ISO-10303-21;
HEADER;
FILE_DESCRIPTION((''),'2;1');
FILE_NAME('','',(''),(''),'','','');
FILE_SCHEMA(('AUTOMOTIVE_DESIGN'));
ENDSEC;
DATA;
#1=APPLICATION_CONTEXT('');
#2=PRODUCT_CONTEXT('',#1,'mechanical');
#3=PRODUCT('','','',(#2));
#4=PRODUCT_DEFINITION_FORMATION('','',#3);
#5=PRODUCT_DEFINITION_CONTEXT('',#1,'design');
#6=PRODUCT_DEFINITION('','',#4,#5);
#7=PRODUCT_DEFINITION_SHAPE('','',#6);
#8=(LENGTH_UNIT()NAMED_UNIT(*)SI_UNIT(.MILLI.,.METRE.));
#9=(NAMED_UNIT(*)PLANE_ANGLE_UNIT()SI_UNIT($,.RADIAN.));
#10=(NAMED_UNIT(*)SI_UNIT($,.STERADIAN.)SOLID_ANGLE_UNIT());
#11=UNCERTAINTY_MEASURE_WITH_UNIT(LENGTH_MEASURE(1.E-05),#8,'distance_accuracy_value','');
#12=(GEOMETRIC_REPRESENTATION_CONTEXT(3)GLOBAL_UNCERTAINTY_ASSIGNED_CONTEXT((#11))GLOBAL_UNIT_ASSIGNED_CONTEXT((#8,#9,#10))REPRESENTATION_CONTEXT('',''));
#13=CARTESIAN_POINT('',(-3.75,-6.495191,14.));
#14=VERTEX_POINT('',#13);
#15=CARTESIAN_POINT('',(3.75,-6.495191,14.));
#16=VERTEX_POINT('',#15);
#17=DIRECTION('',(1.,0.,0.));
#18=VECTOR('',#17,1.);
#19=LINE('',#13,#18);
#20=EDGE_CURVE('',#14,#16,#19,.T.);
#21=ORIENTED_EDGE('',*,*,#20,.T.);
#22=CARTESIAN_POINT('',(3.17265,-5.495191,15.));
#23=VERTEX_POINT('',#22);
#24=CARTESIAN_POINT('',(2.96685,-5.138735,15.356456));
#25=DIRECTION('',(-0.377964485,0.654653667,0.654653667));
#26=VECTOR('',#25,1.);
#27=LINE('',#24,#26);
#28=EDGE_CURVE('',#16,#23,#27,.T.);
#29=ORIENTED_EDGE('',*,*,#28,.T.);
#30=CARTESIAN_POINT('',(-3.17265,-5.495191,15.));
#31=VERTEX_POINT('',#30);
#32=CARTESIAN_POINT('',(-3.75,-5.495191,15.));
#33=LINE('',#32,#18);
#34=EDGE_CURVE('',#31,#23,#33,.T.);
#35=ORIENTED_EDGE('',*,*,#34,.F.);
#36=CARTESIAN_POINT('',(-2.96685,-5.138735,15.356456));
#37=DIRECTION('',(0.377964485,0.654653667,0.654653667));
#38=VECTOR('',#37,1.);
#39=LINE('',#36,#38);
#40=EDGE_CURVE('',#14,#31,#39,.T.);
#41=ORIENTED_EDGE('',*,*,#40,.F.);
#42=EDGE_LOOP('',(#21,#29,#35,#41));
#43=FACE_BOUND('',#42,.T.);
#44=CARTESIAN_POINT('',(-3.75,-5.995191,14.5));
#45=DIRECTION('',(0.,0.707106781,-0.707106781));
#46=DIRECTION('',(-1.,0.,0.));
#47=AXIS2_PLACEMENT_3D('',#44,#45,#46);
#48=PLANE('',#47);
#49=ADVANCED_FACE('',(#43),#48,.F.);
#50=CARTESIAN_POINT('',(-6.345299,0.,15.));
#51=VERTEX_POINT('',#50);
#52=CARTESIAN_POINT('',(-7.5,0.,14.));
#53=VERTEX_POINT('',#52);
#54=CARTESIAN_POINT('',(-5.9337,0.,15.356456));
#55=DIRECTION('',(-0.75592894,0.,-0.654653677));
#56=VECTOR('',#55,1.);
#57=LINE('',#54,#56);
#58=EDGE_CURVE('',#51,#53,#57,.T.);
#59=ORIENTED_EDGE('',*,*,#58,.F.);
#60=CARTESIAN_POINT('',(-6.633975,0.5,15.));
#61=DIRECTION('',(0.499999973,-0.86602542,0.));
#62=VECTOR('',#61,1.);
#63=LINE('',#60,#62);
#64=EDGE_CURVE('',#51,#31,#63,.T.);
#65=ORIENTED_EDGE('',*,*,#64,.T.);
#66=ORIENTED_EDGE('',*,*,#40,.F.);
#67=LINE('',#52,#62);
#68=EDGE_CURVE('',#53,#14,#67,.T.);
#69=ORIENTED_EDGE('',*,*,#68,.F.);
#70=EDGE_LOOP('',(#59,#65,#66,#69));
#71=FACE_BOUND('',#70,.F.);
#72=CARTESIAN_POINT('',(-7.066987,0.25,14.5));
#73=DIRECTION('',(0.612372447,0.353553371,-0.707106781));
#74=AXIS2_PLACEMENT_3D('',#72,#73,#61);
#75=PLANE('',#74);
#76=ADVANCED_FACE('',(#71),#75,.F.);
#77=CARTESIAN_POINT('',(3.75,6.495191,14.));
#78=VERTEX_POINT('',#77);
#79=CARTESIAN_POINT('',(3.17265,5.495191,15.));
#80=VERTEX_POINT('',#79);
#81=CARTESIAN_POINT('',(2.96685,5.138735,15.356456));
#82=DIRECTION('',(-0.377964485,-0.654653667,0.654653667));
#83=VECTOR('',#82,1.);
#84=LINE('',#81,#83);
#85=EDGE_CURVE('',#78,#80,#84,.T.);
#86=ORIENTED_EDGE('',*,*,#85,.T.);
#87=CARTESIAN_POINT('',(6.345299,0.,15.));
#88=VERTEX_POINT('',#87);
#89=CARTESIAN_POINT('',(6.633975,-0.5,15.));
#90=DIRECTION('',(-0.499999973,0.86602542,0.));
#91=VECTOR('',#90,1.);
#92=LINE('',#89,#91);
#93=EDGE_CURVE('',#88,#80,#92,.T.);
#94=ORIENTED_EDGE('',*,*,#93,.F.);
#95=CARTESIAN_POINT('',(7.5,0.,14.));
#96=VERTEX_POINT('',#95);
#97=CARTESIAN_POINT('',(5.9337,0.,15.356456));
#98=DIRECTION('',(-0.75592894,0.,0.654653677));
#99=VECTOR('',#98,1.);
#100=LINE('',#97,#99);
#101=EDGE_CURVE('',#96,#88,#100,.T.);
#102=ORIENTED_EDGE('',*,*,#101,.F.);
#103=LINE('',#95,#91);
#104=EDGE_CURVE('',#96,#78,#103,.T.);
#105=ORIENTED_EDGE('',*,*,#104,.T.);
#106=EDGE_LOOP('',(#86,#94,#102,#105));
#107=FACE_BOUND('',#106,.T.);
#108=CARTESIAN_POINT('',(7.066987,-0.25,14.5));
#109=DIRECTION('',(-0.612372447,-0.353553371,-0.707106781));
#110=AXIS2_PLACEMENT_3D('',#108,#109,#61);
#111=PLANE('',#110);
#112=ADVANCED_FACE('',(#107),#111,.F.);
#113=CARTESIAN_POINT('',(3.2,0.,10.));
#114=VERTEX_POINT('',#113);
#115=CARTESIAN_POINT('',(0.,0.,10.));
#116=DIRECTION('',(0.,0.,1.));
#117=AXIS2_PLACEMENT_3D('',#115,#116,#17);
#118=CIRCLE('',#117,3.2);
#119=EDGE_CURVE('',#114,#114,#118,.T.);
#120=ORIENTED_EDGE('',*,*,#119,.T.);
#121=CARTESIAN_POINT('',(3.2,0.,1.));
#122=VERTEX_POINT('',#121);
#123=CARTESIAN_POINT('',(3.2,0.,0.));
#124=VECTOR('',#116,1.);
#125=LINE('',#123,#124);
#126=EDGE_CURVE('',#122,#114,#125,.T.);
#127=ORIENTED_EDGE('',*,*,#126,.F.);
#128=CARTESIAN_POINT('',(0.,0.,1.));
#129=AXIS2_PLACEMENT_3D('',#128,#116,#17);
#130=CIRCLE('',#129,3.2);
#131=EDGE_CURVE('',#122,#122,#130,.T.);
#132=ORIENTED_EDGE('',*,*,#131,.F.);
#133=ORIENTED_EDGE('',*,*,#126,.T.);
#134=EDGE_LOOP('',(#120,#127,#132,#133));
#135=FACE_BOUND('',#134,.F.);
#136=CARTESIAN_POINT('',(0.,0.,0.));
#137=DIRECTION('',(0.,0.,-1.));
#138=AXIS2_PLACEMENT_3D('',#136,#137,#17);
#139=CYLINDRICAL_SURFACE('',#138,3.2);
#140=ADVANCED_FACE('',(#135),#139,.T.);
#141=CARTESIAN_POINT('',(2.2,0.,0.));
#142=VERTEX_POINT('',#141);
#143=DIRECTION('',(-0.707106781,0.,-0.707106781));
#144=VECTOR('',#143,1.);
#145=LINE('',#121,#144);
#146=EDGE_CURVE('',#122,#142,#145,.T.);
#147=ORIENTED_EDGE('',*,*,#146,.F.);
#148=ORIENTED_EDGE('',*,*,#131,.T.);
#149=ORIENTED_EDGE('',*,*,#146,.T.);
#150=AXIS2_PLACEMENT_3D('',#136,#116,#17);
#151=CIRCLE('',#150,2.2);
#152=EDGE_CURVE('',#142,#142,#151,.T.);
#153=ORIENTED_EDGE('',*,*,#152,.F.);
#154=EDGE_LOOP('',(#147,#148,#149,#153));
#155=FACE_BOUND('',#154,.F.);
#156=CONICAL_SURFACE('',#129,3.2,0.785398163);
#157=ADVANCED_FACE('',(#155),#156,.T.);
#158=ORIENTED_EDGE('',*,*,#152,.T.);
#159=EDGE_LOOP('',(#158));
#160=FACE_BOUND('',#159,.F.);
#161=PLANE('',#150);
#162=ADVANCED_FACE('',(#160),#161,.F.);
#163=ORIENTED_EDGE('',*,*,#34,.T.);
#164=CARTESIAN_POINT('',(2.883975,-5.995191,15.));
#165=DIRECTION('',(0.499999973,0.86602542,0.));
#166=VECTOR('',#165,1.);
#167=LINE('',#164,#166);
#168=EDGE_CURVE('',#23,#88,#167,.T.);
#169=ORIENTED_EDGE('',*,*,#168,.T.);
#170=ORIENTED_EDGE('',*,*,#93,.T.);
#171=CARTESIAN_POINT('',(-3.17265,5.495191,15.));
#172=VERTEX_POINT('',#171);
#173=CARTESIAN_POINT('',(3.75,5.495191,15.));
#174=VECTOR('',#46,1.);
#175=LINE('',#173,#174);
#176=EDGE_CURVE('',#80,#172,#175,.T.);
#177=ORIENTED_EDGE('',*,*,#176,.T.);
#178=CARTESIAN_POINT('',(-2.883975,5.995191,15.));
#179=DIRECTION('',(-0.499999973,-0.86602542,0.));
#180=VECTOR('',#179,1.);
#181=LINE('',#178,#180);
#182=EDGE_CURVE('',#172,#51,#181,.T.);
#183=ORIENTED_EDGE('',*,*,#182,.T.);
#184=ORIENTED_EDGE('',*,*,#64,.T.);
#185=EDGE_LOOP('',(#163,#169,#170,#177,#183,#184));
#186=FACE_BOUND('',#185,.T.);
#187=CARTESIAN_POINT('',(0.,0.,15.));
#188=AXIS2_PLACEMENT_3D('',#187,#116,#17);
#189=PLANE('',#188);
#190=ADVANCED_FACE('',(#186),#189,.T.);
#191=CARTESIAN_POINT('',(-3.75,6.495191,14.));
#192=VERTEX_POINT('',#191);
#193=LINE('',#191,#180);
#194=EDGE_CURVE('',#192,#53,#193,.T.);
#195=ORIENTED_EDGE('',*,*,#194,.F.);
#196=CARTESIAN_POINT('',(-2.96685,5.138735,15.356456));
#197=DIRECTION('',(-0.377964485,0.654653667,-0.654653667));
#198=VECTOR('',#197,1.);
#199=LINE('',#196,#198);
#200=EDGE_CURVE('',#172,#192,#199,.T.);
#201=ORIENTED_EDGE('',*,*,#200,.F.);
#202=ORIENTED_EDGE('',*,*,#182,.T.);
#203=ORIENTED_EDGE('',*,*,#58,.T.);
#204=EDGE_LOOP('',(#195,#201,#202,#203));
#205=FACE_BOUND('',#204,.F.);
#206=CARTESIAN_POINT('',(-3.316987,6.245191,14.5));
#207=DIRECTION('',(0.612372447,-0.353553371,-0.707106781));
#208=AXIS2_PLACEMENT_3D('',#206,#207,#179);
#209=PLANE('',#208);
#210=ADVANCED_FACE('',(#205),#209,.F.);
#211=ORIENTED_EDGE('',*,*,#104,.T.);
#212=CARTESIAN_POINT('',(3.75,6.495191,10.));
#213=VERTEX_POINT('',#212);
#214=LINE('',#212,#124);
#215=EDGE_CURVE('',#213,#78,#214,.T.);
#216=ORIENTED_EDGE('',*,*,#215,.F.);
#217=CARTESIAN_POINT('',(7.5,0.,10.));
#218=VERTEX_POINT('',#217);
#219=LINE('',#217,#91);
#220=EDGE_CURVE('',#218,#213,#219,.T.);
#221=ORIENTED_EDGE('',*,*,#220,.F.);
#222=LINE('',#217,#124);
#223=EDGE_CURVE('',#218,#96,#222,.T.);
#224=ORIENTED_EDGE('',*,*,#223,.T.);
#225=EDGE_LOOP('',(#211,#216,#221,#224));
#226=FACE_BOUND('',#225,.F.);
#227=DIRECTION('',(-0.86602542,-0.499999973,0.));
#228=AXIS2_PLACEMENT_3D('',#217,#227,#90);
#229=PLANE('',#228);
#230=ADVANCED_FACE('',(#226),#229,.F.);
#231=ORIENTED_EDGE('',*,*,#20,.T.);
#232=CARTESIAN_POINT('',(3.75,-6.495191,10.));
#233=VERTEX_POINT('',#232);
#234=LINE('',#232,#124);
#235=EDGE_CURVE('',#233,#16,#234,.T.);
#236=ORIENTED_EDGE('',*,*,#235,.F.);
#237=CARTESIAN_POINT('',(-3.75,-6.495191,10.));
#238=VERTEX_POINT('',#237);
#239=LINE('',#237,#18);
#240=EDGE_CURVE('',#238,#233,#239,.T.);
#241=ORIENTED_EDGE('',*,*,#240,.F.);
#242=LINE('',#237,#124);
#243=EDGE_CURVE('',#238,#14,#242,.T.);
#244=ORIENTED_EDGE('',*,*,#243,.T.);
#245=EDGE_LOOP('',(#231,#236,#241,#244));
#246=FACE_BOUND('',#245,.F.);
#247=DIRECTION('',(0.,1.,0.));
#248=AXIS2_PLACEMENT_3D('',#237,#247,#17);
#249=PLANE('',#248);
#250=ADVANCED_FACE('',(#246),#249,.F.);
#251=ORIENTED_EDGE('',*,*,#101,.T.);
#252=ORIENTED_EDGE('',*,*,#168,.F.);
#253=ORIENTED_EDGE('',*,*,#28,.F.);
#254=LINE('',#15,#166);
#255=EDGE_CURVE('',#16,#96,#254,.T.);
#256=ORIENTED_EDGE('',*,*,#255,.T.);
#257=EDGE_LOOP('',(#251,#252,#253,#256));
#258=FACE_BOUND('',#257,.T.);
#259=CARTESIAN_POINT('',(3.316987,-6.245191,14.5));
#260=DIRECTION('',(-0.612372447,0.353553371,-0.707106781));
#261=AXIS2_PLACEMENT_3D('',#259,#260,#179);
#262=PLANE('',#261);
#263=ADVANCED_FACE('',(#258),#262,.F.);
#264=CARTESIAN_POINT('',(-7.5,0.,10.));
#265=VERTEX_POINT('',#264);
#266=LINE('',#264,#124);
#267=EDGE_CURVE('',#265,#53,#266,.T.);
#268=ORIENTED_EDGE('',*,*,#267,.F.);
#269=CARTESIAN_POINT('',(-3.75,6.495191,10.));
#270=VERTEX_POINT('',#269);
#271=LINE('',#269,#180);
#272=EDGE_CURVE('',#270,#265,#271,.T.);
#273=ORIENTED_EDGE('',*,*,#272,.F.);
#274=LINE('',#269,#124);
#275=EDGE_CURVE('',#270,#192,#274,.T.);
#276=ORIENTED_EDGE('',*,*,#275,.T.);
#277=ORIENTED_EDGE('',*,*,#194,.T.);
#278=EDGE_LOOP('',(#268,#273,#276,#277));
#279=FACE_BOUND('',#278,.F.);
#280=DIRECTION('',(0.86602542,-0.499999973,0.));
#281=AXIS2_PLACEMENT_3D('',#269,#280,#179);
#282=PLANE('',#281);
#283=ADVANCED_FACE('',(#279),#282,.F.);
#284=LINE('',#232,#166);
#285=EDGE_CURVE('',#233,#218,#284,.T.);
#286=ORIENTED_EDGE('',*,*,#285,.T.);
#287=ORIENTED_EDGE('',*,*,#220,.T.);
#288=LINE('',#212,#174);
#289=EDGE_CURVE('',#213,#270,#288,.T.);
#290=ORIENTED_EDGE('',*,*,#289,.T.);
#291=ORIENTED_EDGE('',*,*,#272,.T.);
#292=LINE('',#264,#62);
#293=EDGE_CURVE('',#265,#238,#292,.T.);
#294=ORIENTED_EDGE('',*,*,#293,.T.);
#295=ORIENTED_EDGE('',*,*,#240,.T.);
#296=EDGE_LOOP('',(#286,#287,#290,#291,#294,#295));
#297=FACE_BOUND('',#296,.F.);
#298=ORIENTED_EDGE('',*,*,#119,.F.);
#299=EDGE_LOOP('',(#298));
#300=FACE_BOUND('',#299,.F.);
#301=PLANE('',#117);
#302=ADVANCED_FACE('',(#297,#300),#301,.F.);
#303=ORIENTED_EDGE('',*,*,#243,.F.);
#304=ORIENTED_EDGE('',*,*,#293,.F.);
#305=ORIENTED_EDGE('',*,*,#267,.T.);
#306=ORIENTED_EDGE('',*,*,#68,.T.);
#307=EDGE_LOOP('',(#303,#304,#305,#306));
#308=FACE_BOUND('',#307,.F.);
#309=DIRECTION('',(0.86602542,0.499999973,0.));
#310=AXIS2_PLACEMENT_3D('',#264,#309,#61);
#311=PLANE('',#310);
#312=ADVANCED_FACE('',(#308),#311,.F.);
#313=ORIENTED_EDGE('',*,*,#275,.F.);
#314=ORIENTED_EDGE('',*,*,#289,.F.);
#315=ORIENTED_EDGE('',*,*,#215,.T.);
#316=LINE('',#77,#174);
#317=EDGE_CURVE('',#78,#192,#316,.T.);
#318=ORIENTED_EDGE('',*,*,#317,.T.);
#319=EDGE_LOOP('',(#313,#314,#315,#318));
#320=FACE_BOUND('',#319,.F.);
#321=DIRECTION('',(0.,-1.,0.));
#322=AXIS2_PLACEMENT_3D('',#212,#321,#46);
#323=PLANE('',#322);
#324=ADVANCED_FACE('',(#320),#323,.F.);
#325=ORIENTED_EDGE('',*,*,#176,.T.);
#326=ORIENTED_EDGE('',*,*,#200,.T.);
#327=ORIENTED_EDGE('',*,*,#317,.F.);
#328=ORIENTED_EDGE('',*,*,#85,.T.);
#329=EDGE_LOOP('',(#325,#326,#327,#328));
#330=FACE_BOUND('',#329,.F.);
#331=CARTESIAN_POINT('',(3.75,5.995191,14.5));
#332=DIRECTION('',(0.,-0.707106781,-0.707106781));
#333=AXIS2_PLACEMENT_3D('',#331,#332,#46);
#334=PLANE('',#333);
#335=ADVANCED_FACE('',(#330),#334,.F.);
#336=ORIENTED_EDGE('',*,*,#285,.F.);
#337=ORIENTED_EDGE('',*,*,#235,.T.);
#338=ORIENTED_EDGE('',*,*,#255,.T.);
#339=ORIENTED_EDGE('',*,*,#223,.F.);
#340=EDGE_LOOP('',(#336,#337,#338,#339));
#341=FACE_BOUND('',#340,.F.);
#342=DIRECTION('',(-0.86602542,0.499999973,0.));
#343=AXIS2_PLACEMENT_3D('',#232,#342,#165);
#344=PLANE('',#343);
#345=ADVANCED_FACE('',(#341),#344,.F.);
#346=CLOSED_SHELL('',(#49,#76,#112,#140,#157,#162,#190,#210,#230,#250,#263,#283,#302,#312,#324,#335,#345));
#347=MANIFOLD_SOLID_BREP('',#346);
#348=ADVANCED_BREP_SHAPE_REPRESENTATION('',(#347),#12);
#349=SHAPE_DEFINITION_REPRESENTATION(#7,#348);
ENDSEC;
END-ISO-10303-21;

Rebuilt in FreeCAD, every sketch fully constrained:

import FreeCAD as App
import Part
import Sketcher
Q = App.Units.Quantity


def edges_at(feature, points):
    """Names of the edges that pass closest to the given points."""
    edges = feature.Shape.Edges
    near = lambda p: min(range(len(edges)), key=lambda i: edges[i].distToShape(Part.Vertex(*p))[0])
    return sorted({f"Edge{near(p) + 1}" for p in points})


def add_polygon(sketch, points):
    """Adds a closed chain of lines whose ends are joined by coincident constraints."""
    first, n = sketch.GeometryCount, len(points)
    for a, b in zip(points, points[1:] + points[:1]):
        sketch.addGeometry(Part.LineSegment(App.Vector(*a, 0), App.Vector(*b, 0)), False)
    for i in range(n):
        sketch.addConstraint(Sketcher.Constraint("Coincident", first + i, 2, first + (i + 1) % n, 1))

doc = App.newDocument("Part")
body = doc.addObject("PartDesign::Body", "Body")

# Sketch on XY plane
sketch1 = body.newObject("Sketcher::SketchObject", "Sketch")
sketch1.AttachmentSupport = (doc.getObject("XY_Plane"), [""])
sketch1.MapMode = "FlatFace"
sketch1.addGeometry(Part.Circle(App.Vector(0, 0, 0), App.Vector(0, 0, 1), 3.2), False)
sketch1.addConstraint([
    Sketcher.Constraint("Coincident", 0, 3, -1, 1),
    Sketcher.Constraint("Diameter", 0, 6.4),
])
pad1 = body.newObject("PartDesign::Pad", "Pad")
pad1.Profile = sketch1
pad1.Length = 10

# Sketch on XY plane
sketch2 = body.newObject("Sketcher::SketchObject", "Sketch001")
sketch2.AttachmentSupport = (doc.getObject("XY_Plane"), [""])
sketch2.MapMode = "FlatFace"
sketch2.AttachmentOffset = App.Placement(App.Vector(0, 0, 10), App.Rotation())
add_polygon(sketch2, [(3.75, -6.495191), (7.5, 0), (3.75, 6.495191), (-3.75, 6.495191), (-7.5, 0), (-3.75, -6.495191)])  # lines 0-5
sketch2.addConstraint([
    Sketcher.Constraint("Horizontal", 2),
    Sketcher.Constraint("Horizontal", 5),
    Sketcher.Constraint("Symmetric", 0, 2, 3, 2, -1, 1),
    Sketcher.Constraint("Symmetric", 1, 2, 4, 2, -1, 1),
    Sketcher.Constraint("PointOnObject", 0, 2, -1),
    Sketcher.Constraint("Parallel", 0, 3),
    Sketcher.Constraint("Vertical", 2, 2, 4, 2),
    Sketcher.Constraint("Angle", 0, Q("60.000002 deg")),
    Sketcher.Constraint("DistanceX", 2, 2, 2, 1, 7.5),
    Sketcher.Constraint("DistanceX", 3, 2, 0, 2, 15.0),
])
pad2 = body.newObject("PartDesign::Pad", "Pad001")
pad2.Profile = sketch2
pad2.Length = 5
doc.recompute()

chamfer = body.newObject("PartDesign::Chamfer", "Chamfer")
chamfer.Base = (pad2, edges_at(pad2, [
    (0, -6.495, 15),
    (5.625, -3.248, 15),
    (5.625, 3.248, 15),
    (0, 6.495, 15),
    (-5.625, 3.248, 15),
    (-5.625, -3.248, 15),
    (-3.2, 0, 0),
]))
chamfer.Size = 1

doc.recompute()
